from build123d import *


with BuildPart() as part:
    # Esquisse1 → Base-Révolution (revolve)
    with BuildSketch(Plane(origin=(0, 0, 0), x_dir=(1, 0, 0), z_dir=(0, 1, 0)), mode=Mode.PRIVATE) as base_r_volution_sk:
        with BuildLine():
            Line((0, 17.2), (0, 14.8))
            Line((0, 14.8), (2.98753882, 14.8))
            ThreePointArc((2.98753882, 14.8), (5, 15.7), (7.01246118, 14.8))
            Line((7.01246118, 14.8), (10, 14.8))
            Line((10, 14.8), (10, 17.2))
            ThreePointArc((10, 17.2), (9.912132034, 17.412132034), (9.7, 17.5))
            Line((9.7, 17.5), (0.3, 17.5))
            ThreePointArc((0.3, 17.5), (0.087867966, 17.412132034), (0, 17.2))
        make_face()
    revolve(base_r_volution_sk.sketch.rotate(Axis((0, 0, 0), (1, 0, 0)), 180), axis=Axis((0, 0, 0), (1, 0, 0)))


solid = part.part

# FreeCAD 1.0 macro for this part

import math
import FreeCAD as App
import Part
import Sketcher

doc = App.newDocument("Part")
body = doc.addObject("PartDesign::Body", "Body")

sketch1 = body.newObject("Sketcher::SketchObject", "Sketch")
sketch1.AttachmentSupport = (doc.getObject("XZ_Plane"), [""])
sketch1.MapMode = "FlatFace"
sketch1.addGeometry([
    Part.LineSegment(App.Vector(0, -17.2, 0), App.Vector(0, -14.8, 0)),
    Part.LineSegment(App.Vector(0, -14.8, 0), App.Vector(2.987539, -14.8, 0)),
    Part.ArcOfCircle(Part.Circle(App.Vector(5, -13, 0), App.Vector(0, 0, 1), 2.7), math.radians(-138.189685), math.radians(-41.810315)),
    Part.LineSegment(App.Vector(7.012461, -14.8, 0), App.Vector(10, -14.8, 0)),
    Part.LineSegment(App.Vector(10, -14.8, 0), App.Vector(10, -17.2, 0)),
    Part.ArcOfCircle(Part.Circle(App.Vector(9.7, -17.2, 0), App.Vector(0, 0, 1), 0.3), math.radians(-90), math.radians(0)),
    Part.LineSegment(App.Vector(9.7, -17.5, 0), App.Vector(0.3, -17.5, 0)),
    Part.ArcOfCircle(Part.Circle(App.Vector(0.3, -17.2, 0), App.Vector(0, 0, 1), 0.3), math.radians(-180), math.radians(-90)),
], False)
sketch1.addConstraint([
    Sketcher.Constraint("Coincident", 0, 2, 1, 1),
    Sketcher.Constraint("Coincident", 1, 2, 2, 1),
    Sketcher.Constraint("Coincident", 2, 2, 3, 1),
    Sketcher.Constraint("Coincident", 3, 2, 4, 1),
    Sketcher.Constraint("Tangent", 4, 2, 5, 2),
    Sketcher.Constraint("Tangent", 5, 1, 6, 1),
    Sketcher.Constraint("Tangent", 6, 2, 7, 2),
    Sketcher.Constraint("Tangent", 7, 1, 0, 1),
    Sketcher.Constraint("Vertical", 0),
    Sketcher.Constraint("Horizontal", 1),
    Sketcher.Constraint("Horizontal", 3),
    Sketcher.Constraint("Vertical", 4),
    Sketcher.Constraint("Horizontal", 6),
    Sketcher.Constraint("Equal", 5, 7),
    Sketcher.Constraint("PointOnObject", 0, 2, -2),
    Sketcher.Constraint("Horizontal", 1, 2, 2, 2),
    Sketcher.Constraint("Equal", 1, 3),
    Sketcher.Constraint("Radius", 2, 2.7),
    Sketcher.Constraint("Radius", 5, 0.3),
    Sketcher.Constraint("DistanceX", 6, 2, 6, 1, 9.4),
    Sketcher.Constraint("DistanceY", 0, 1, 0, 2, 2.4),
    Sketcher.Constraint("DistanceY", 2, 3, -1, 1, 13.0),
    Sketcher.Constraint("DistanceY", 5, 3, -1, 1, 17.2),
])
revolution = body.newObject("PartDesign::Revolution", "Revolution")
revolution.Profile = sketch1
revolution.ReferenceAxis = (sketch1, ["H_Axis"])
revolution.Angle = 360

doc.recompute()
